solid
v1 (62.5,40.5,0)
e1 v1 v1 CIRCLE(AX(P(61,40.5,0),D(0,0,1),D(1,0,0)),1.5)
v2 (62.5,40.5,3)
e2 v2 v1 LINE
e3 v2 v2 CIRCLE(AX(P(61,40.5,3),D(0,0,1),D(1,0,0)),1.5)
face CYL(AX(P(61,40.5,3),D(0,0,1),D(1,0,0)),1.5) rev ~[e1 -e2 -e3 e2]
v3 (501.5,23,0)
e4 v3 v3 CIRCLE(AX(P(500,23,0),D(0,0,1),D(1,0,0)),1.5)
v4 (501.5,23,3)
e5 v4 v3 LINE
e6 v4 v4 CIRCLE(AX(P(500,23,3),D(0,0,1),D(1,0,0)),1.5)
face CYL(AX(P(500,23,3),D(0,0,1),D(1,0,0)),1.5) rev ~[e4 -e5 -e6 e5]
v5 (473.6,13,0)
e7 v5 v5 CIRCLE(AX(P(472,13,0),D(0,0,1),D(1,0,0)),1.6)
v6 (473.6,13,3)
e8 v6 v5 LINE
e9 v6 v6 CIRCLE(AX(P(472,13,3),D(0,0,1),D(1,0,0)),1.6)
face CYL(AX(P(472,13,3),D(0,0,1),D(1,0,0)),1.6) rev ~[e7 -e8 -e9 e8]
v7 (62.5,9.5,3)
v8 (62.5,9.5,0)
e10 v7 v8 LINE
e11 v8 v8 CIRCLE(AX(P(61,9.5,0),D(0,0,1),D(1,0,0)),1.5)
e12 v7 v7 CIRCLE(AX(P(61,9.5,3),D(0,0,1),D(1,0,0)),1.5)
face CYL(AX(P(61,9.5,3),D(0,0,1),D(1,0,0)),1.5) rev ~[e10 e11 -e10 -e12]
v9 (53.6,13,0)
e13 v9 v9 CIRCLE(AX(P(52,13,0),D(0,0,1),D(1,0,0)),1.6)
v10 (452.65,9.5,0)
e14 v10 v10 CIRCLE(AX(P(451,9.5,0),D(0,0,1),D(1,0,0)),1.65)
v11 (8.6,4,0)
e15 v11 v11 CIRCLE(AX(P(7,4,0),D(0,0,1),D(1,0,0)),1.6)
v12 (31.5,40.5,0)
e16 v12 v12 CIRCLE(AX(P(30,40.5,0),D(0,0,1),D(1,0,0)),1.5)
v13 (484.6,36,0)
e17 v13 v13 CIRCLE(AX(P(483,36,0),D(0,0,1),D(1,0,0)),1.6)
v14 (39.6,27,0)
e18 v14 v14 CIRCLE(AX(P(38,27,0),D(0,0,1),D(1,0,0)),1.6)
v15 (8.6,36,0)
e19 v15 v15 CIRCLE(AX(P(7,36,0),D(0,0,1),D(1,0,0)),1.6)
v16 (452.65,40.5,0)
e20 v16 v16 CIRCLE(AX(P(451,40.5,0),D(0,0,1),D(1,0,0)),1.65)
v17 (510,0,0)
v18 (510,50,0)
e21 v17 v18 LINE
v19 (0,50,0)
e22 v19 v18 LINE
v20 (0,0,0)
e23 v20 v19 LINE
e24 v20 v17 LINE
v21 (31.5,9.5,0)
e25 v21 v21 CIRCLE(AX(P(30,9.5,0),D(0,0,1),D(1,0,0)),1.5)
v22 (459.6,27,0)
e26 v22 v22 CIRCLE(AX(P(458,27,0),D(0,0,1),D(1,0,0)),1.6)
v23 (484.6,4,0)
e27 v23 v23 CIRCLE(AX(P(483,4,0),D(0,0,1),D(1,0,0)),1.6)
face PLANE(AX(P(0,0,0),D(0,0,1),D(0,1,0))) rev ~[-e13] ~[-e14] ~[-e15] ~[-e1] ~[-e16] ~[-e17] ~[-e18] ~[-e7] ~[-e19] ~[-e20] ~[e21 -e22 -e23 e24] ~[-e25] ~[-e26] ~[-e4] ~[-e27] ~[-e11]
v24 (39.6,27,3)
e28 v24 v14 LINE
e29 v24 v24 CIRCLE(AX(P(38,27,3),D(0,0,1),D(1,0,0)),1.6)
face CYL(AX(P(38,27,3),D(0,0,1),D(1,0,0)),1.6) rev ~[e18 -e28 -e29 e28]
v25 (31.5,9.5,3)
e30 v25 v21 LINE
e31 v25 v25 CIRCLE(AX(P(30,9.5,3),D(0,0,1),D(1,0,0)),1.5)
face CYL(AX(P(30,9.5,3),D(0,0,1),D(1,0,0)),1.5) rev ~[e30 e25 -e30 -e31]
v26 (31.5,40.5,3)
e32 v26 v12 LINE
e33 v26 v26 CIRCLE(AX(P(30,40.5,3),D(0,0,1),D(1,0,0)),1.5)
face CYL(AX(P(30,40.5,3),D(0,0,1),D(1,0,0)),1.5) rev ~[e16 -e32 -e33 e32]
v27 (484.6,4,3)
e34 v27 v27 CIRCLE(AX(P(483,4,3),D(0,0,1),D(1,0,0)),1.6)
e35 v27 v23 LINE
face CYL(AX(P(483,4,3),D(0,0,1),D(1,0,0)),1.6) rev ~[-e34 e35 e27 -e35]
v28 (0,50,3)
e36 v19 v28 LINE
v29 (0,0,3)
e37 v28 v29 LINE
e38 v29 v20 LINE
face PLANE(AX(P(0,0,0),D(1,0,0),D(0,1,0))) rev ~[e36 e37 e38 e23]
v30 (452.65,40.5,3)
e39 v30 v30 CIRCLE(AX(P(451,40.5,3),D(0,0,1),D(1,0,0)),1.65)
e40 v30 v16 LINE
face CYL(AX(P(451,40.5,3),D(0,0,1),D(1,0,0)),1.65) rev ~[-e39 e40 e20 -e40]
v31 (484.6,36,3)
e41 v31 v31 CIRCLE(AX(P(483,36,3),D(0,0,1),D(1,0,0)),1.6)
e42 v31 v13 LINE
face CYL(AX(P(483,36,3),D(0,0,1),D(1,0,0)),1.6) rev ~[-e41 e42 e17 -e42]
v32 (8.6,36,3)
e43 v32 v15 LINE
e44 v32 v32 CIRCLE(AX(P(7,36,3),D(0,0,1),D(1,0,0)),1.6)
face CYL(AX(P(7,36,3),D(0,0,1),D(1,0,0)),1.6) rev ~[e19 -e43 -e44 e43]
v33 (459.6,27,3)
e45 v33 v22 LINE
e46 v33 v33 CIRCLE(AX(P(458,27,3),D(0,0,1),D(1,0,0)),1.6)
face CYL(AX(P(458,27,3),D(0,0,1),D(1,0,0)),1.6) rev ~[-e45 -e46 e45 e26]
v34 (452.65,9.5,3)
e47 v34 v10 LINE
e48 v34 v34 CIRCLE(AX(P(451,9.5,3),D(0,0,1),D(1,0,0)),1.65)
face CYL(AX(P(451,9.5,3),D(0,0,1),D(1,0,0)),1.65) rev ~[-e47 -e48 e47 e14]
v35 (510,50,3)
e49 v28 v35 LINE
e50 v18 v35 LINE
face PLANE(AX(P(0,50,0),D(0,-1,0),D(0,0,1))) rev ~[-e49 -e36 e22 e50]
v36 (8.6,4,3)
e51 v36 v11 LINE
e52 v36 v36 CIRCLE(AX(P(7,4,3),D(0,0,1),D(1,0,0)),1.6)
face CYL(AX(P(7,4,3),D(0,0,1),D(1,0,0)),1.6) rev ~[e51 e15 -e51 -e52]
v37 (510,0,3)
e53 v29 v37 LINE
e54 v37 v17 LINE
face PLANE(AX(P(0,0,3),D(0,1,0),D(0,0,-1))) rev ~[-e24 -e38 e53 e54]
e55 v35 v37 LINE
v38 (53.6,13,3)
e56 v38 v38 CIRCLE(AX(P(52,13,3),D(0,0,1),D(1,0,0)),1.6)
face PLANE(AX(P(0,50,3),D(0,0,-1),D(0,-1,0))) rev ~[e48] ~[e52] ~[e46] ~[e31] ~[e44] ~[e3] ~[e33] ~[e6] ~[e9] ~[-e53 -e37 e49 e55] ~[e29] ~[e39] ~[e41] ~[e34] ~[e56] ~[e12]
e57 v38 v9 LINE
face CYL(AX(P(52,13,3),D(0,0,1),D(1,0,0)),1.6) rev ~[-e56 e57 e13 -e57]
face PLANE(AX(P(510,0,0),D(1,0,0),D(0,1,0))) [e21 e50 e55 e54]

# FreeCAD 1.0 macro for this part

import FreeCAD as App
import Part
import Sketcher

V = App.Vector
Q = App.Units.Quantity


def add_polygon(sketch, points):
    """Adds a closed chain of lines whose ends are joined by coincident constraints."""
    first, n = sketch.GeometryCount, len(points)
    for a, b in zip(points, points[1:] + points[:1]):
        sketch.addGeometry(Part.LineSegment(App.Vector(*a, 0), App.Vector(*b, 0)), False)
    for i in range(n):
        sketch.addConstraint(Sketcher.Constraint("Coincident", first + i, 2, first + (i + 1) % n, 1))

doc = App.newDocument("Part")
body = doc.addObject("PartDesign::Body", "Body")

# Sketch on YZ plane
sketch1 = body.newObject("Sketcher::SketchObject", "Sketch")
sketch1.AttachmentSupport = (doc.getObject("YZ_Plane"), [""])
sketch1.MapMode = "FlatFace"
add_polygon(sketch1, [(0, 3), (0, 0), (50, 0), (50, 3)])  # lines 0-3
sketch1.addConstraint([
    Sketcher.Constraint("Vertical", 0),
    Sketcher.Constraint("Horizontal", 1),
    Sketcher.Constraint("Vertical", 2),
    Sketcher.Constraint("Horizontal", 3),
    Sketcher.Constraint("Coincident", 0, 2, -1, 1),
    Sketcher.Constraint("DistanceX", 1, 1, 1, 2, Q("50 mm")),
    Sketcher.Constraint("DistanceY", 0, 2, 0, 1, Q("3 mm")),
])
pad1 = body.newObject("PartDesign::Pad", "Pad")
pad1.Profile = sketch1
pad1.Length = 510

# Sketch on XY plane
sketch2 = body.newObject("Sketcher::SketchObject", "Sketch001")
sketch2.AttachmentSupport = (doc.getObject("XY_Plane"), [""])
sketch2.MapMode = "FlatFace"
sketch2.AttachmentOffset = App.Placement(V(0, 0, 3), App.Rotation())
sketch2.addGeometry([
    Part.Circle(V(30, 40.5, 0), V(0, 0, 1), 1.5),  # 0
    Part.Circle(V(61, 40.5, 0), V(0, 0, 1), 1.5),  # 1
    Part.Circle(V(61, 9.5, 0), V(0, 0, 1), 1.5),  # 2
    Part.Circle(V(30, 9.5, 0), V(0, 0, 1), 1.5),  # 3
    Part.Circle(V(500, 23, 0), V(0, 0, 1), 1.5),  # 4
    Part.Circle(V(472, 13, 0), V(0, 0, 1), 1.6),  # 5
    Part.Circle(V(458, 27, 0), V(0, 0, 1), 1.6),  # 6
    Part.Circle(V(451, 40.5, 0), V(0, 0, 1), 1.6),  # 7
    Part.Circle(V(451, 9.5, 0), V(0, 0, 1), 1.6),  # 8
    Part.Circle(V(52, 13, 0), V(0, 0, 1), 1.6),  # 9
    Part.Circle(V(38, 27, 0), V(0, 0, 1), 1.6),  # 10
    Part.Circle(V(483, 36, 0), V(0, 0, 1), 1.6),  # 11
    Part.Circle(V(483, 4, 0), V(0, 0, 1), 1.6),  # 12
    Part.Circle(V(7, 36, 0), V(0, 0, 1), 1.6),  # 13
    Part.Circle(V(7, 4, 0), V(0, 0, 1), 1.6),  # 14
], False)
sketch2.addConstraint([
    Sketcher.Constraint("Equal", 0, 1),
    Sketcher.Constraint("Equal", 1, 2),
    Sketcher.Constraint("Equal", 2, 3),
    Sketcher.Constraint("Equal", 3, 4),
    Sketcher.Constraint("Equal", 5, 6),
    Sketcher.Constraint("Equal", 7, 8),
    Sketcher.Constraint("Equal", 6, 9),
    Sketcher.Constraint("Equal", 9, 10),
    Sketcher.Constraint("Equal", 10, 11),
    Sketcher.Constraint("Equal", 11, 12),
    Sketcher.Constraint("Equal", 12, 13),
    Sketcher.Constraint("Equal", 13, 14),
    Sketcher.Constraint("Horizontal", 0, 3, 1, 3),
    Sketcher.Constraint("Horizontal", 2, 3, 3, 3),
    Sketcher.Constraint("Horizontal", 1, 3, 7, 3),
    Sketcher.Constraint("Horizontal", 3, 3, 8, 3),
    Sketcher.Constraint("Horizontal", 5, 3, 9, 3),
    Sketcher.Constraint("Horizontal", 6, 3, 10, 3),
    Sketcher.Constraint("Horizontal", 11, 3, 13, 3),
    Sketcher.Constraint("Horizontal", 12, 3, 14, 3),
    Sketcher.Constraint("Vertical", 1, 3, 2, 3),
    Sketcher.Constraint("Vertical", 0, 3, 3, 3),
    Sketcher.Constraint("Vertical", 7, 3, 8, 3),
    Sketcher.Constraint("Vertical", 11, 3, 12, 3),
    Sketcher.Constraint("Vertical", 13, 3, 14, 3),
    Sketcher.Constraint("Diameter", 0, Q("3 mm")),
    Sketcher.Constraint("DistanceX", -1, 1, 0, 3, Q("30 mm")),
    Sketcher.Constraint("DistanceY", -1, 1, 4, 3, Q("23 mm")),
    Sketcher.Constraint("DistanceX", 0, 3, 1, 3, Q("31 mm")),
    Sketcher.Constraint("DistanceY", 2, 3, 1, 3, Q("31 mm")),
    Sketcher.Constraint("DistanceY", 5, 3, 4, 3, Q("10 mm")),
    Sketcher.Constraint("DistanceX", 10, 3, 1, 3, Q("23 mm")),
    Sketcher.Constraint("DistanceY", 5, 3, 11, 3, Q("23 mm")),
    Sketcher.Constraint("DistanceY", 12, 3, 6, 3, Q("23 mm")),
    Sketcher.Constraint("DistanceX", 13, 3, 0, 3, Q("23 mm")),
    Sketcher.Constraint("Diameter", 5, Q("3.2 mm")),
    Sketcher.Constraint("Diameter", 7, Q("3.3 mm")),
    Sketcher.Constraint("DistanceX", -1, 1, 4, 3, Q("500 mm")),
    Sketcher.Constraint("DistanceX", -1, 1, 5, 3, Q("472 mm")),
    Sketcher.Constraint("DistanceX", -1, 1, 6, 3, Q("458 mm")),
    Sketcher.Constraint("DistanceY", -1, 1, 6, 3, Q("27 mm")),
    Sketcher.Constraint("DistanceX", -1, 1, 7, 3, Q("451 mm")),
    Sketcher.Constraint("DistanceX", -1, 1, 9, 3, Q("52 mm")),
    Sketcher.Constraint("DistanceX", -1, 1, 11, 3, Q("483 mm")),
    Sketcher.Constraint("DistanceY", -1, 1, 0, 3, Q("40.5 mm")),
])
pocket1 = body.newObject("PartDesign::Pocket", "Pocket")
pocket1.Profile = sketch2
pocket1.Length = 10

doc.recompute()
